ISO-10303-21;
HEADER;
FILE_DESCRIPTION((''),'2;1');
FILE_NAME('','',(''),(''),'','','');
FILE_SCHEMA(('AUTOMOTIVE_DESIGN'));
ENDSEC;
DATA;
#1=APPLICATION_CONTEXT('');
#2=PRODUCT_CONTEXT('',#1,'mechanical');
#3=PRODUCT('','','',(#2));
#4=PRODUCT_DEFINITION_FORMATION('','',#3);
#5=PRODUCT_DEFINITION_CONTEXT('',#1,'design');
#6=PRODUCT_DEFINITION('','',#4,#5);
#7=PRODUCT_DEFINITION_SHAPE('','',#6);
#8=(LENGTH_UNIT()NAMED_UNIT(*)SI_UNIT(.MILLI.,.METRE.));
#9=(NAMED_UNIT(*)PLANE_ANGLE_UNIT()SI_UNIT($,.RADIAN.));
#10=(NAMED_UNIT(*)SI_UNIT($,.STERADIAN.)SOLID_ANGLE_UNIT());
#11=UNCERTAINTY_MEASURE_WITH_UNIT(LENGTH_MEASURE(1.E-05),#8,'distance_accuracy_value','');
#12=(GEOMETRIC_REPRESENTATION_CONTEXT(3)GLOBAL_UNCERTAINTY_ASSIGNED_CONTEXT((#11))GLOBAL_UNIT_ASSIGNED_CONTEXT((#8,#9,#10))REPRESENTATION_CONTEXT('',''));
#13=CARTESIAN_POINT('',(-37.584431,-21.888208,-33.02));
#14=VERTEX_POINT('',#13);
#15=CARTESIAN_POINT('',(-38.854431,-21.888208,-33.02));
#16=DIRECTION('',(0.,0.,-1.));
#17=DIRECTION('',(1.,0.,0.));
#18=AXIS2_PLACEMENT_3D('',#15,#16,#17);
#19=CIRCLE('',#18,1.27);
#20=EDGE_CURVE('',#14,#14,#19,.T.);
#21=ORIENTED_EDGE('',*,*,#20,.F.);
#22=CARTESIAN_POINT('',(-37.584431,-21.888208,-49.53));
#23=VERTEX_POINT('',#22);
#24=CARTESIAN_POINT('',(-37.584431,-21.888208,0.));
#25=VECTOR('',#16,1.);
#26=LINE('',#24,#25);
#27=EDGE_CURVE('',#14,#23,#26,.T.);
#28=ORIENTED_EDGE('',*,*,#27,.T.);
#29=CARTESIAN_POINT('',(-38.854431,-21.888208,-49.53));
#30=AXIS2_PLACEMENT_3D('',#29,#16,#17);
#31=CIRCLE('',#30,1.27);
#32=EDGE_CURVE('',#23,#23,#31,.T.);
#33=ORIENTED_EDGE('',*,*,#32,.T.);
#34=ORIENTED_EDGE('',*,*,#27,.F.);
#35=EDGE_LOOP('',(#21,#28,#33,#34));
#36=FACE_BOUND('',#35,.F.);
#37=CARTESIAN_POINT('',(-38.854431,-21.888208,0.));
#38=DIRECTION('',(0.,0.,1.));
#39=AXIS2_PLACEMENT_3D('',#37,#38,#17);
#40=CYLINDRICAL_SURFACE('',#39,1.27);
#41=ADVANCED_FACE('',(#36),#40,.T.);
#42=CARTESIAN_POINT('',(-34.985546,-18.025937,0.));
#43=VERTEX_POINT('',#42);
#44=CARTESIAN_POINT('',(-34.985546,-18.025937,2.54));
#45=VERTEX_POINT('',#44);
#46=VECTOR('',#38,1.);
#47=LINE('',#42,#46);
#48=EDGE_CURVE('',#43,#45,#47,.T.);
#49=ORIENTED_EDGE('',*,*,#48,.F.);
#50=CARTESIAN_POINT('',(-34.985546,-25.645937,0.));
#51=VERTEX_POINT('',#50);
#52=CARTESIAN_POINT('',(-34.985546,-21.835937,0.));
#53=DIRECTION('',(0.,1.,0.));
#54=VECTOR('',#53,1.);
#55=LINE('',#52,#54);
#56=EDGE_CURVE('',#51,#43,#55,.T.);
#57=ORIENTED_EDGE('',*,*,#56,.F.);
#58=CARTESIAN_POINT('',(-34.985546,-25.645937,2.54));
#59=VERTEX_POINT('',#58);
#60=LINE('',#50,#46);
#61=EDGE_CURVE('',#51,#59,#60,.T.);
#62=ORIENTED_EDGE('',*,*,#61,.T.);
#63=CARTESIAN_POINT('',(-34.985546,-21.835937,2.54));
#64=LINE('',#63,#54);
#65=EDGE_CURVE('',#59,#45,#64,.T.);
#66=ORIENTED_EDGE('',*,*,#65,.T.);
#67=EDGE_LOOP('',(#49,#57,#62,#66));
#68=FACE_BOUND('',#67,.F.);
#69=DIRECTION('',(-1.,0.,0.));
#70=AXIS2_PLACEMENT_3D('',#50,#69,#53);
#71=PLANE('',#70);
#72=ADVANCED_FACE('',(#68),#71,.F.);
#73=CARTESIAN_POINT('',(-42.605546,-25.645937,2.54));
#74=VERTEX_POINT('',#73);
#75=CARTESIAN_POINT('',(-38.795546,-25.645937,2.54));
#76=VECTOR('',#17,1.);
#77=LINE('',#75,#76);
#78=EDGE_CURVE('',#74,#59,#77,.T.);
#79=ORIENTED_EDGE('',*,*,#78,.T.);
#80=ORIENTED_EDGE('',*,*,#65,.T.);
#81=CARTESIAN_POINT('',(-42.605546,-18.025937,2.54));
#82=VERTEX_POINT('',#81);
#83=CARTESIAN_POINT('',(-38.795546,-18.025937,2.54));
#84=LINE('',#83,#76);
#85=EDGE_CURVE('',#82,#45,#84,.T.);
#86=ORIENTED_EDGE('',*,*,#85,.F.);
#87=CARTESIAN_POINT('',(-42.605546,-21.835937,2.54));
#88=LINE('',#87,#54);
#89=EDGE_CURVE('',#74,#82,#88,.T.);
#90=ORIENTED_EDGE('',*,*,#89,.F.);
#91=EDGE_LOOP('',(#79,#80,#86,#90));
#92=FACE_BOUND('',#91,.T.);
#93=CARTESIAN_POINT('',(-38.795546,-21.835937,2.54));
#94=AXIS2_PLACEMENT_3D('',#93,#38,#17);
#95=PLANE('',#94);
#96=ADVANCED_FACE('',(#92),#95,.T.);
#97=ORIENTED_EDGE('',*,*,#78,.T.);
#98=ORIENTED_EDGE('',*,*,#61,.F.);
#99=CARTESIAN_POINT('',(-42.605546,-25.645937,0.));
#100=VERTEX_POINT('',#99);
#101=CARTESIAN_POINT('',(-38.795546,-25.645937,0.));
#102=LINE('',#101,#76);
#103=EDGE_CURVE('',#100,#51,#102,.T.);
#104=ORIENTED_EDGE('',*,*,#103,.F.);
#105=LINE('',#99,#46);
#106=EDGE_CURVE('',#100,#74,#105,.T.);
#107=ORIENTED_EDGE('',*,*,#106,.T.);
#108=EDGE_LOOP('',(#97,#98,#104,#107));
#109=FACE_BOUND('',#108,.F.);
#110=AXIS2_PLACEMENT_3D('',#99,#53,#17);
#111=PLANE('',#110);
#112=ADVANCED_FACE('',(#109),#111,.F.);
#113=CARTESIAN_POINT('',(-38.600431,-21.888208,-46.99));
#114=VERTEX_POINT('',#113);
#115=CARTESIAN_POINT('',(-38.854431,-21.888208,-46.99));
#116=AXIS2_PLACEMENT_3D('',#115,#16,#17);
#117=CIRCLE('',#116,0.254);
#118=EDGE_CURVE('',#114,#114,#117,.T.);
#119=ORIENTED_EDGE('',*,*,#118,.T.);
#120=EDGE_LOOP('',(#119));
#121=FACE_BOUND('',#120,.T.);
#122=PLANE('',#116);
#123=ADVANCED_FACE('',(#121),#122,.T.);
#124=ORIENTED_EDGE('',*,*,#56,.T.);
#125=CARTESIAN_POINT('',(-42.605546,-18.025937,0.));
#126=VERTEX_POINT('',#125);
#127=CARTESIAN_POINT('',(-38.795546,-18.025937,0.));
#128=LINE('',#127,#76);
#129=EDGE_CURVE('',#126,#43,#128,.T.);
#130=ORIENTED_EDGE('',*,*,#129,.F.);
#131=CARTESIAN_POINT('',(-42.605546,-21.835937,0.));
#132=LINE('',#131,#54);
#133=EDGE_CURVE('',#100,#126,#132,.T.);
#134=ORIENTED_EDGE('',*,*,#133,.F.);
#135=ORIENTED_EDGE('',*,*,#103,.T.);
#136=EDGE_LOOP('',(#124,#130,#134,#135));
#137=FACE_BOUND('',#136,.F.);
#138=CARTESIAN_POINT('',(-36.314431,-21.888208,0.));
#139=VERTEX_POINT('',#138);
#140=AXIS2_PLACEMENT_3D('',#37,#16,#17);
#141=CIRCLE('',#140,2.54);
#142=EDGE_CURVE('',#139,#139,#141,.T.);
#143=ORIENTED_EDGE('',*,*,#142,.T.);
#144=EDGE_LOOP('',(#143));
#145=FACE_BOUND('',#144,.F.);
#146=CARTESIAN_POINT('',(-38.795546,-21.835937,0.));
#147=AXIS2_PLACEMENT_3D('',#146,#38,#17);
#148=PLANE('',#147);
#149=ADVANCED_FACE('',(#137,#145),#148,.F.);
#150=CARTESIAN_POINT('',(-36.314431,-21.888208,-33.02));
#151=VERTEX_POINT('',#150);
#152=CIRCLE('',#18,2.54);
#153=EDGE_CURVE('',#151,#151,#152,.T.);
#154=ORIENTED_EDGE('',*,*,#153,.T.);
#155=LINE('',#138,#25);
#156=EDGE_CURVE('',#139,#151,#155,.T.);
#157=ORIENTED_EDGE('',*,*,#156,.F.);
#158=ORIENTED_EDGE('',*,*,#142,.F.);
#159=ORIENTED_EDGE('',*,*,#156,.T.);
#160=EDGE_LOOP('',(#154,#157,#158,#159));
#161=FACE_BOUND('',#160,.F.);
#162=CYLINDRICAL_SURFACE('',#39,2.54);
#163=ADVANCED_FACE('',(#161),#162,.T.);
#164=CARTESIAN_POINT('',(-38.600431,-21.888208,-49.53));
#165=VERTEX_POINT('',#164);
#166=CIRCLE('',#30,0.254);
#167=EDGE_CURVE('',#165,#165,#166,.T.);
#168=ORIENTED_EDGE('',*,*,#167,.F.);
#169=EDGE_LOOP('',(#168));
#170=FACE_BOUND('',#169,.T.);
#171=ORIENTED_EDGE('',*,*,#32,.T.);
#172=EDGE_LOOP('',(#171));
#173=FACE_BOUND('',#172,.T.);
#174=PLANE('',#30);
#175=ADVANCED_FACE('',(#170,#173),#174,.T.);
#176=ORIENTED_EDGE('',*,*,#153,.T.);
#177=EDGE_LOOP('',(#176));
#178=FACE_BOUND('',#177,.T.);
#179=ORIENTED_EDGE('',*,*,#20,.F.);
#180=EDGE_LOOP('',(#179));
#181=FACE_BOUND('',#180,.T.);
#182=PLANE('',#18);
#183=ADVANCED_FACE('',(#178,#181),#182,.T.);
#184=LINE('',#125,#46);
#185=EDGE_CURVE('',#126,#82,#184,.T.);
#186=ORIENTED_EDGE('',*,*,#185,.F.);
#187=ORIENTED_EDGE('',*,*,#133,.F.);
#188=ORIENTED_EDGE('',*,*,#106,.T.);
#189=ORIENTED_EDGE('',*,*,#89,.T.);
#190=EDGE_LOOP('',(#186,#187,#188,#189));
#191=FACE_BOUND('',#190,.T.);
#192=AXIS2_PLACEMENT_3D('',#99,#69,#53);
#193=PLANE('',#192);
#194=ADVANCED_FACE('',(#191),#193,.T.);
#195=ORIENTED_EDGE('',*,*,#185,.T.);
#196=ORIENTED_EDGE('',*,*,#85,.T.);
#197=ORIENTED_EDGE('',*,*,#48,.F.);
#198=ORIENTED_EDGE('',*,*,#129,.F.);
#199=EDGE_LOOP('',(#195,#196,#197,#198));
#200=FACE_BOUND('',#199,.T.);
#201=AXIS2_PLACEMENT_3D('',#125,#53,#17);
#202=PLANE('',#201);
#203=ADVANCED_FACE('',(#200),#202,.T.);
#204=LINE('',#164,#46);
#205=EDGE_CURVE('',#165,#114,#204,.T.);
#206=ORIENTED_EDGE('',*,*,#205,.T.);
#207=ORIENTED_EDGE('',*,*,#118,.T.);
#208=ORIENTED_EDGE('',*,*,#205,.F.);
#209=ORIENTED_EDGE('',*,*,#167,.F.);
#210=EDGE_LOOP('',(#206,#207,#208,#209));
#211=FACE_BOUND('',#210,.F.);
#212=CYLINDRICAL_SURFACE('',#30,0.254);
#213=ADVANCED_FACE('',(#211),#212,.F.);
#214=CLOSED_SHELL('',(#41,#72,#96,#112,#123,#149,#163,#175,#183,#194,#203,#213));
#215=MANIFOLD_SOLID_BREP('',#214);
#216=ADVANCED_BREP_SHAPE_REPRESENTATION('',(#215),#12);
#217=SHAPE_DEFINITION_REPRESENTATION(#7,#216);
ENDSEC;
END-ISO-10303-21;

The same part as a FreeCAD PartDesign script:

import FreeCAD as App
import Part
import Sketcher
from FreeCAD import Vector
Q = App.Units.Quantity

doc = App.newDocument("Part")
body = doc.addObject("PartDesign::Body", "Body")

sketch1 = doc.addObject("Sketcher::SketchObject", "Sketch")
body.addObject(sketch1)
sketch1.AttachmentSupport = (doc.XY_Plane, [""])
sketch1.MapMode = "FlatFace"
sketch1.addGeometry(Part.LineSegment(Vector(-43, -18, 0), Vector(-43, -26, 0)), False)
sketch1.addGeometry(Part.LineSegment(Vector(-43, -26, 0), Vector(-35, -26, 0)), False)
sketch1.addGeometry(Part.LineSegment(Vector(-35, -26, 0), Vector(-35, -18, 0)), False)
sketch1.addGeometry(Part.LineSegment(Vector(-35, -18, 0), Vector(-43, -18, 0)), False)
sketch1.addConstraint(Sketcher.Constraint("Coincident", 0, 2, 1, 1))
sketch1.addConstraint(Sketcher.Constraint("Coincident", 1, 2, 2, 1))
sketch1.addConstraint(Sketcher.Constraint("Coincident", 2, 2, 3, 1))
sketch1.addConstraint(Sketcher.Constraint("Coincident", 3, 2, 0, 1))
sketch1.addConstraint(Sketcher.Constraint("Vertical", 0))
sketch1.addConstraint(Sketcher.Constraint("Horizontal", 1))
sketch1.addConstraint(Sketcher.Constraint("Vertical", 2))
sketch1.addConstraint(Sketcher.Constraint("Horizontal", 3))
sketch1.addConstraint(Sketcher.Constraint("Equal", 3, 0))
sketch1.addConstraint(Sketcher.Constraint("DistanceX", 1, 1, 1, 2, Q("0.3 in")))
sketch1.addConstraint(Sketcher.Constraint("DistanceX", 0, 2, -1, 1, 42.605546))
sketch1.addConstraint(Sketcher.Constraint("DistanceY", 0, 2, -1, 1, 25.645937))
pad1 = doc.addObject("PartDesign::Pad", "Pad")
body.addObject(pad1)
pad1.Profile = sketch1
pad1.Length = Q("0.1 in")

sketch2 = doc.addObject("Sketcher::SketchObject", "Sketch001")
body.addObject(sketch2)
sketch2.AttachmentSupport = (doc.XY_Plane, [""])
sketch2.MapMode = "FlatFace"
sketch2.addGeometry(Part.Circle(Vector(-38.9, -21.9, 0), Vector(0, 0, 1), 1.3), False)
sketch2.addConstraint(Sketcher.Constraint("Diameter", 0, Q("0.1 in")))
sketch2.addConstraint(Sketcher.Constraint("DistanceX", 0, 3, -1, 1, 38.854431))
sketch2.addConstraint(Sketcher.Constraint("DistanceY", 0, 3, -1, 1, 21.888208))
pad2 = doc.addObject("PartDesign::Pad", "Pad001")
body.addObject(pad2)
pad2.Profile = sketch2
pad2.Length = Q("1.95 in")
pad2.Reversed = True

sketch3 = doc.addObject("Sketcher::SketchObject", "Sketch002")
body.addObject(sketch3)
sketch3.AttachmentSupport = (doc.XY_Plane, [""])
sketch3.MapMode = "FlatFace"
sketch3.AttachmentOffset = App.Placement(Vector(0, 0, -1.95 * 25.4), App.Rotation())
sketch3.addGeometry(Part.Circle(Vector(-38.85, -21.89, 0), Vector(0, 0, 1), 0.25), False)
sketch3.addConstraint(Sketcher.Constraint("Diameter", 0, Q("0.02 in")))
sketch3.addConstraint(Sketcher.Constraint("DistanceX", 0, 3, -1, 1, 38.854431))
sketch3.addConstraint(Sketcher.Constraint("DistanceY", 0, 3, -1, 1, 21.888208))
pocket1 = doc.addObject("PartDesign::Pocket", "Pocket")
body.addObject(pocket1)
pocket1.Profile = sketch3
pocket1.Length = Q("0.1 in")
pocket1.Reversed = True

sketch4 = doc.addObject("Sketcher::SketchObject", "Sketch003")
body.addObject(sketch4)
sketch4.AttachmentSupport = (doc.XY_Plane, [""])
sketch4.MapMode = "FlatFace"
sketch4.addGeometry(Part.Circle(Vector(-38.9, -21.9, 0), Vector(0, 0, 1), 2.5), False)
sketch4.addGeometry(Part.Circle(Vector(-38.9, -21.9, 0), Vector(0, 0, 1), 1.3), False)
sketch4.addConstraint(Sketcher.Constraint("Coincident", 1, 3, 0, 3))
sketch4.addConstraint(Sketcher.Constraint("Diameter", 0, Q("0.2 in")))
sketch4.addConstraint(Sketcher.Constraint("Diameter", 1, Q("0.1 in")))
sketch4.addConstraint(Sketcher.Constraint("DistanceX", 0, 3, -1, 1, 38.854431))
sketch4.addConstraint(Sketcher.Constraint("DistanceY", 0, 3, -1, 1, 21.888208))
pad3 = doc.addObject("PartDesign::Pad", "Pad002")
body.addObject(pad3)
pad3.Profile = sketch4
pad3.Length = Q("1.3 in")
pad3.Reversed = True

doc.recompute()
